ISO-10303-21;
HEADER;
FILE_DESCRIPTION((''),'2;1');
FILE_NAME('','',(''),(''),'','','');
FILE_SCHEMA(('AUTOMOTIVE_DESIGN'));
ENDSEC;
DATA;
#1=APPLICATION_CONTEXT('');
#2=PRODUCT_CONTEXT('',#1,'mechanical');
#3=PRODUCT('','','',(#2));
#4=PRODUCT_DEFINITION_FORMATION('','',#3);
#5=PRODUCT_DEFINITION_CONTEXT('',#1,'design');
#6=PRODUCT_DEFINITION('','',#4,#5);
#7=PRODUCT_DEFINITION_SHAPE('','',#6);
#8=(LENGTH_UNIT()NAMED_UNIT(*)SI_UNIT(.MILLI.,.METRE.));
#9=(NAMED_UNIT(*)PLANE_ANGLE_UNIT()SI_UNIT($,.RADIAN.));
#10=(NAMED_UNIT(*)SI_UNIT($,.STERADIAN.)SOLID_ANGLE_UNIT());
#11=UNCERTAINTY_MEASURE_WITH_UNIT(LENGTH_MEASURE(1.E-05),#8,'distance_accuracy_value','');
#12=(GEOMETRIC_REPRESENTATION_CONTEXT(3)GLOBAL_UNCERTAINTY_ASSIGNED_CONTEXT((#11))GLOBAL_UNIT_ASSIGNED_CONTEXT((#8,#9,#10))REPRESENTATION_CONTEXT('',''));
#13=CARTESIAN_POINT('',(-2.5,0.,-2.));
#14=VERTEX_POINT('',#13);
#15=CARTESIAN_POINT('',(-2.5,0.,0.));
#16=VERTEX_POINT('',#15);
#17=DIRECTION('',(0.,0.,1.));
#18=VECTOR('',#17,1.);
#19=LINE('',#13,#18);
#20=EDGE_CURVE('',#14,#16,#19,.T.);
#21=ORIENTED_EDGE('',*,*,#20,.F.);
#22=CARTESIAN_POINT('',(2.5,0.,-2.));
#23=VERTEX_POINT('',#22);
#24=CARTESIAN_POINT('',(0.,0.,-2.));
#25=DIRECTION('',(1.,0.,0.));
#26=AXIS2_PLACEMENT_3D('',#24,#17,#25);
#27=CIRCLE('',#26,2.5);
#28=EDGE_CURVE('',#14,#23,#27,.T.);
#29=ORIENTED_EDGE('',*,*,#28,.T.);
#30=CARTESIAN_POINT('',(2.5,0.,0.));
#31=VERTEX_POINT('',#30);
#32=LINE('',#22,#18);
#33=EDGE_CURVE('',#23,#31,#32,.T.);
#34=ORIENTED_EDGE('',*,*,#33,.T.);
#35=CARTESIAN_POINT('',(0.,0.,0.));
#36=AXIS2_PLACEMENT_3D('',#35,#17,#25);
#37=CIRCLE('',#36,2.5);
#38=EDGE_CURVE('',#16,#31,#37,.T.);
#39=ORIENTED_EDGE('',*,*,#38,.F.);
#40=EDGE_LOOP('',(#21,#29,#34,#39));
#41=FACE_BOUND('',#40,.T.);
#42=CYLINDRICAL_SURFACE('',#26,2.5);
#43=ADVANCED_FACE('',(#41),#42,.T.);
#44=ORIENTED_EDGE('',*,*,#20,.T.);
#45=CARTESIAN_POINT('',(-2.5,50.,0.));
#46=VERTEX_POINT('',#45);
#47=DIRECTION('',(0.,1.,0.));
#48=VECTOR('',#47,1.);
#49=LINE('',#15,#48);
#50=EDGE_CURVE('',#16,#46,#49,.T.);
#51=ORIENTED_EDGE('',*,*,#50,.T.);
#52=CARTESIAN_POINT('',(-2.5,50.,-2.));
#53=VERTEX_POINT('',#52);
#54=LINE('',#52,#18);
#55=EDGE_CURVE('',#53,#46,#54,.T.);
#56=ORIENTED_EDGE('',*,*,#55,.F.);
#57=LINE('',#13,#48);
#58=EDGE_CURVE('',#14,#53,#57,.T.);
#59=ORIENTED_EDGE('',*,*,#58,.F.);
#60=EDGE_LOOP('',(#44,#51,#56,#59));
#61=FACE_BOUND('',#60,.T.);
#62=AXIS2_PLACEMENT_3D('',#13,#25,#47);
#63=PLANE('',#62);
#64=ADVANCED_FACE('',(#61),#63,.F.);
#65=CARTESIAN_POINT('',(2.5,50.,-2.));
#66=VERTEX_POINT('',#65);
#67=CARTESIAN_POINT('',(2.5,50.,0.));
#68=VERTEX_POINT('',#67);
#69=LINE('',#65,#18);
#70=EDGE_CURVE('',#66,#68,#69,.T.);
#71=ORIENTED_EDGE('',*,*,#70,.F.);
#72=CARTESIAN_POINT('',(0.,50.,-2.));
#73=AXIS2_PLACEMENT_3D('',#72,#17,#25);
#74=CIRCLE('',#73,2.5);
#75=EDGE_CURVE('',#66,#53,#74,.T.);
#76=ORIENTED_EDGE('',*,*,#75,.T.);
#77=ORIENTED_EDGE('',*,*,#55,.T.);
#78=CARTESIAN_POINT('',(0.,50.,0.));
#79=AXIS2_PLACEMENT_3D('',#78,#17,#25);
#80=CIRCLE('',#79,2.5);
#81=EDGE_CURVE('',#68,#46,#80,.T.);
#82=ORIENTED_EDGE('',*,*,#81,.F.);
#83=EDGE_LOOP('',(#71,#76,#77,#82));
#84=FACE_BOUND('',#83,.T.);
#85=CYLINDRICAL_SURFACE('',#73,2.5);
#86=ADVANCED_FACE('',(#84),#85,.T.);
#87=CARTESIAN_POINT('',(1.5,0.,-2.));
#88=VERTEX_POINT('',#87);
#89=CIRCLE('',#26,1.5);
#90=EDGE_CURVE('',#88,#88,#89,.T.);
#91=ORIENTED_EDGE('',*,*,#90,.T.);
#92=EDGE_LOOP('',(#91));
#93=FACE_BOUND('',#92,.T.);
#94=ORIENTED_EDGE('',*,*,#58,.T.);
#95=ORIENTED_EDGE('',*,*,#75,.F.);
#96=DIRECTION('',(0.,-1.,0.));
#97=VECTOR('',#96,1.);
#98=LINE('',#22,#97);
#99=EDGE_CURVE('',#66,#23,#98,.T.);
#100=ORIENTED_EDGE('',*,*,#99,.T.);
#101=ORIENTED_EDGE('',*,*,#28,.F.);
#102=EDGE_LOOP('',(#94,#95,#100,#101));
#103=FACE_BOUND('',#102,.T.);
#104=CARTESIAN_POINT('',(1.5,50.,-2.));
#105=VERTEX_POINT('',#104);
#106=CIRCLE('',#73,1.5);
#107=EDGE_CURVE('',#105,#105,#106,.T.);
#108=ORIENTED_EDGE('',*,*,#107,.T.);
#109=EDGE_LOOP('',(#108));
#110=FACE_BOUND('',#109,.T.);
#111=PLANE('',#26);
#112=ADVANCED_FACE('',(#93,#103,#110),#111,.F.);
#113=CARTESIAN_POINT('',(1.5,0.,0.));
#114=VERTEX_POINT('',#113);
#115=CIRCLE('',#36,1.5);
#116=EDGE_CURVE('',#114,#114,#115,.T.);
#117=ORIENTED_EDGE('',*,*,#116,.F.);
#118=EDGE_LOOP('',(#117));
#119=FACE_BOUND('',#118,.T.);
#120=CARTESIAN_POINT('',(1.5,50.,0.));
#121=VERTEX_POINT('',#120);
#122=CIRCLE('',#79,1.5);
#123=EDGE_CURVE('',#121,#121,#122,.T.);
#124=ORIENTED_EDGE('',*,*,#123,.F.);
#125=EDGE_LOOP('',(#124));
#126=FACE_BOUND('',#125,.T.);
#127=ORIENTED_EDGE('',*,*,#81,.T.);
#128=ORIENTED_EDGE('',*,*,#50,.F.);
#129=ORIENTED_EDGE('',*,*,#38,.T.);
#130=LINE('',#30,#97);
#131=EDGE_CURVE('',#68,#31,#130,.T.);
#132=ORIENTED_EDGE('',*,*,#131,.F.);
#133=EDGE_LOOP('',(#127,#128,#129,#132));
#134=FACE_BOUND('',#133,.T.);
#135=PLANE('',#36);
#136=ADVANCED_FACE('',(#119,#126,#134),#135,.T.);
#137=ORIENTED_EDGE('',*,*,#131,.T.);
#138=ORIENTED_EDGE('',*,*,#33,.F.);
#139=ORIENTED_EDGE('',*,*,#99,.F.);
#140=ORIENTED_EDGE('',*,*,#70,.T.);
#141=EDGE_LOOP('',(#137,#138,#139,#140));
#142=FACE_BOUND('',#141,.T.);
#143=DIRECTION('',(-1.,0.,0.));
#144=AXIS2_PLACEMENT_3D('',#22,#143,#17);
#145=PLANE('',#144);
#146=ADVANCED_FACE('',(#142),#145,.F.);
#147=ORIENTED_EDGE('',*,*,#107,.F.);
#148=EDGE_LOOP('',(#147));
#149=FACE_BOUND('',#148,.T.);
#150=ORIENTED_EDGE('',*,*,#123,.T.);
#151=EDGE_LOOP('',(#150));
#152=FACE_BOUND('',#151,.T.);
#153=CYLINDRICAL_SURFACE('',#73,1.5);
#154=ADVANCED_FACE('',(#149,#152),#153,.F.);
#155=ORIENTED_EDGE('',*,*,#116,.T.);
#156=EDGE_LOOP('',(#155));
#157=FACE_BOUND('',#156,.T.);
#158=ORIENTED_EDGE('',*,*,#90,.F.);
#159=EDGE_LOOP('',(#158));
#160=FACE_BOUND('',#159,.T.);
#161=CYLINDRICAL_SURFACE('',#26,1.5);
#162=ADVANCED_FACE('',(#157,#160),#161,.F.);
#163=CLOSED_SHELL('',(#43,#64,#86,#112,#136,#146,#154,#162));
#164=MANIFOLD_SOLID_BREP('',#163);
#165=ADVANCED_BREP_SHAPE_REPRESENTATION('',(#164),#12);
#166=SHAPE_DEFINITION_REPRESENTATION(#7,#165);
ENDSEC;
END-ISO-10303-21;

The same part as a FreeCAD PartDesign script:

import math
import FreeCAD as App
import Part
import Sketcher

V = App.Vector

doc = App.newDocument("Part")
body = doc.addObject("PartDesign::Body", "Body")

# Sketch on XY plane
sketch1 = body.newObject("Sketcher::SketchObject", "Sketch")
sketch1.AttachmentSupport = (doc.getObject("XY_Plane"), [""])
sketch1.MapMode = "FlatFace"
sketch1.addGeometry([
    Part.LineSegment(V(-2.5, 50, 0), V(-2.5, 0, 0)),
    Part.ArcOfCircle(Part.Circle(V(0, 0, 0), V(0, 0, 1), 2.5), math.radians(180), math.radians(360)),
    Part.LineSegment(V(2.5, 0, 0), V(2.5, 50, 0)),
    Part.ArcOfCircle(Part.Circle(V(0, 50, 0), V(0, 0, 1), 2.5), math.radians(0), math.radians(180)),
], False)
sketch1.addConstraint([
    Sketcher.Constraint("Tangent", 0, 2, 1, 1),
    Sketcher.Constraint("Tangent", 1, 2, 2, 1),
    Sketcher.Constraint("Tangent", 2, 2, 3, 1),
    Sketcher.Constraint("Tangent", 3, 2, 0, 1),
    Sketcher.Constraint("Vertical", 0),
    Sketcher.Constraint("Vertical", 2),
    Sketcher.Constraint("Coincident", 1, 3, -1, 1),
    Sketcher.Constraint("Radius", 1, 2.5),
    Sketcher.Constraint("DistanceY", 0, 2, 0, 1, 50.0),
])
pad1 = body.newObject("PartDesign::Pad", "Pad")
pad1.Profile = sketch1
pad1.Length = 2
pad1.Reversed = True

# Sketch on XY plane
sketch2 = body.newObject("Sketcher::SketchObject", "Sketch001")
sketch2.AttachmentSupport = (doc.getObject("XY_Plane"), [""])
sketch2.MapMode = "FlatFace"
sketch2.addGeometry(Part.Circle(V(0, 0, 0), V(0, 0, 1), 1.5), False)
sketch2.addConstraint([
    Sketcher.Constraint("Coincident", 0, 3, -1, 1),
    Sketcher.Constraint("Diameter", 0, 3.0),
])
pocket1 = body.newObject("PartDesign::Pocket", "Pocket")
pocket1.Profile = sketch2
pocket1.Type = "ThroughAll"

# Sketch on XY plane
sketch3 = body.newObject("Sketcher::SketchObject", "Sketch002")
sketch3.AttachmentSupport = (doc.getObject("XY_Plane"), [""])
sketch3.MapMode = "FlatFace"
sketch3.addGeometry(Part.Circle(V(0, 50, 0), V(0, 0, 1), 1.5), False)
sketch3.addConstraint([
    Sketcher.Constraint("PointOnObject", 0, 3, -2),
    Sketcher.Constraint("Diameter", 0, 3.0),
    Sketcher.Constraint("DistanceY", -1, 1, 0, 3, 50.0),
])
pocket2 = body.newObject("PartDesign::Pocket", "Pocket001")
pocket2.Profile = sketch3
pocket2.Length = 2

doc.recompute()
